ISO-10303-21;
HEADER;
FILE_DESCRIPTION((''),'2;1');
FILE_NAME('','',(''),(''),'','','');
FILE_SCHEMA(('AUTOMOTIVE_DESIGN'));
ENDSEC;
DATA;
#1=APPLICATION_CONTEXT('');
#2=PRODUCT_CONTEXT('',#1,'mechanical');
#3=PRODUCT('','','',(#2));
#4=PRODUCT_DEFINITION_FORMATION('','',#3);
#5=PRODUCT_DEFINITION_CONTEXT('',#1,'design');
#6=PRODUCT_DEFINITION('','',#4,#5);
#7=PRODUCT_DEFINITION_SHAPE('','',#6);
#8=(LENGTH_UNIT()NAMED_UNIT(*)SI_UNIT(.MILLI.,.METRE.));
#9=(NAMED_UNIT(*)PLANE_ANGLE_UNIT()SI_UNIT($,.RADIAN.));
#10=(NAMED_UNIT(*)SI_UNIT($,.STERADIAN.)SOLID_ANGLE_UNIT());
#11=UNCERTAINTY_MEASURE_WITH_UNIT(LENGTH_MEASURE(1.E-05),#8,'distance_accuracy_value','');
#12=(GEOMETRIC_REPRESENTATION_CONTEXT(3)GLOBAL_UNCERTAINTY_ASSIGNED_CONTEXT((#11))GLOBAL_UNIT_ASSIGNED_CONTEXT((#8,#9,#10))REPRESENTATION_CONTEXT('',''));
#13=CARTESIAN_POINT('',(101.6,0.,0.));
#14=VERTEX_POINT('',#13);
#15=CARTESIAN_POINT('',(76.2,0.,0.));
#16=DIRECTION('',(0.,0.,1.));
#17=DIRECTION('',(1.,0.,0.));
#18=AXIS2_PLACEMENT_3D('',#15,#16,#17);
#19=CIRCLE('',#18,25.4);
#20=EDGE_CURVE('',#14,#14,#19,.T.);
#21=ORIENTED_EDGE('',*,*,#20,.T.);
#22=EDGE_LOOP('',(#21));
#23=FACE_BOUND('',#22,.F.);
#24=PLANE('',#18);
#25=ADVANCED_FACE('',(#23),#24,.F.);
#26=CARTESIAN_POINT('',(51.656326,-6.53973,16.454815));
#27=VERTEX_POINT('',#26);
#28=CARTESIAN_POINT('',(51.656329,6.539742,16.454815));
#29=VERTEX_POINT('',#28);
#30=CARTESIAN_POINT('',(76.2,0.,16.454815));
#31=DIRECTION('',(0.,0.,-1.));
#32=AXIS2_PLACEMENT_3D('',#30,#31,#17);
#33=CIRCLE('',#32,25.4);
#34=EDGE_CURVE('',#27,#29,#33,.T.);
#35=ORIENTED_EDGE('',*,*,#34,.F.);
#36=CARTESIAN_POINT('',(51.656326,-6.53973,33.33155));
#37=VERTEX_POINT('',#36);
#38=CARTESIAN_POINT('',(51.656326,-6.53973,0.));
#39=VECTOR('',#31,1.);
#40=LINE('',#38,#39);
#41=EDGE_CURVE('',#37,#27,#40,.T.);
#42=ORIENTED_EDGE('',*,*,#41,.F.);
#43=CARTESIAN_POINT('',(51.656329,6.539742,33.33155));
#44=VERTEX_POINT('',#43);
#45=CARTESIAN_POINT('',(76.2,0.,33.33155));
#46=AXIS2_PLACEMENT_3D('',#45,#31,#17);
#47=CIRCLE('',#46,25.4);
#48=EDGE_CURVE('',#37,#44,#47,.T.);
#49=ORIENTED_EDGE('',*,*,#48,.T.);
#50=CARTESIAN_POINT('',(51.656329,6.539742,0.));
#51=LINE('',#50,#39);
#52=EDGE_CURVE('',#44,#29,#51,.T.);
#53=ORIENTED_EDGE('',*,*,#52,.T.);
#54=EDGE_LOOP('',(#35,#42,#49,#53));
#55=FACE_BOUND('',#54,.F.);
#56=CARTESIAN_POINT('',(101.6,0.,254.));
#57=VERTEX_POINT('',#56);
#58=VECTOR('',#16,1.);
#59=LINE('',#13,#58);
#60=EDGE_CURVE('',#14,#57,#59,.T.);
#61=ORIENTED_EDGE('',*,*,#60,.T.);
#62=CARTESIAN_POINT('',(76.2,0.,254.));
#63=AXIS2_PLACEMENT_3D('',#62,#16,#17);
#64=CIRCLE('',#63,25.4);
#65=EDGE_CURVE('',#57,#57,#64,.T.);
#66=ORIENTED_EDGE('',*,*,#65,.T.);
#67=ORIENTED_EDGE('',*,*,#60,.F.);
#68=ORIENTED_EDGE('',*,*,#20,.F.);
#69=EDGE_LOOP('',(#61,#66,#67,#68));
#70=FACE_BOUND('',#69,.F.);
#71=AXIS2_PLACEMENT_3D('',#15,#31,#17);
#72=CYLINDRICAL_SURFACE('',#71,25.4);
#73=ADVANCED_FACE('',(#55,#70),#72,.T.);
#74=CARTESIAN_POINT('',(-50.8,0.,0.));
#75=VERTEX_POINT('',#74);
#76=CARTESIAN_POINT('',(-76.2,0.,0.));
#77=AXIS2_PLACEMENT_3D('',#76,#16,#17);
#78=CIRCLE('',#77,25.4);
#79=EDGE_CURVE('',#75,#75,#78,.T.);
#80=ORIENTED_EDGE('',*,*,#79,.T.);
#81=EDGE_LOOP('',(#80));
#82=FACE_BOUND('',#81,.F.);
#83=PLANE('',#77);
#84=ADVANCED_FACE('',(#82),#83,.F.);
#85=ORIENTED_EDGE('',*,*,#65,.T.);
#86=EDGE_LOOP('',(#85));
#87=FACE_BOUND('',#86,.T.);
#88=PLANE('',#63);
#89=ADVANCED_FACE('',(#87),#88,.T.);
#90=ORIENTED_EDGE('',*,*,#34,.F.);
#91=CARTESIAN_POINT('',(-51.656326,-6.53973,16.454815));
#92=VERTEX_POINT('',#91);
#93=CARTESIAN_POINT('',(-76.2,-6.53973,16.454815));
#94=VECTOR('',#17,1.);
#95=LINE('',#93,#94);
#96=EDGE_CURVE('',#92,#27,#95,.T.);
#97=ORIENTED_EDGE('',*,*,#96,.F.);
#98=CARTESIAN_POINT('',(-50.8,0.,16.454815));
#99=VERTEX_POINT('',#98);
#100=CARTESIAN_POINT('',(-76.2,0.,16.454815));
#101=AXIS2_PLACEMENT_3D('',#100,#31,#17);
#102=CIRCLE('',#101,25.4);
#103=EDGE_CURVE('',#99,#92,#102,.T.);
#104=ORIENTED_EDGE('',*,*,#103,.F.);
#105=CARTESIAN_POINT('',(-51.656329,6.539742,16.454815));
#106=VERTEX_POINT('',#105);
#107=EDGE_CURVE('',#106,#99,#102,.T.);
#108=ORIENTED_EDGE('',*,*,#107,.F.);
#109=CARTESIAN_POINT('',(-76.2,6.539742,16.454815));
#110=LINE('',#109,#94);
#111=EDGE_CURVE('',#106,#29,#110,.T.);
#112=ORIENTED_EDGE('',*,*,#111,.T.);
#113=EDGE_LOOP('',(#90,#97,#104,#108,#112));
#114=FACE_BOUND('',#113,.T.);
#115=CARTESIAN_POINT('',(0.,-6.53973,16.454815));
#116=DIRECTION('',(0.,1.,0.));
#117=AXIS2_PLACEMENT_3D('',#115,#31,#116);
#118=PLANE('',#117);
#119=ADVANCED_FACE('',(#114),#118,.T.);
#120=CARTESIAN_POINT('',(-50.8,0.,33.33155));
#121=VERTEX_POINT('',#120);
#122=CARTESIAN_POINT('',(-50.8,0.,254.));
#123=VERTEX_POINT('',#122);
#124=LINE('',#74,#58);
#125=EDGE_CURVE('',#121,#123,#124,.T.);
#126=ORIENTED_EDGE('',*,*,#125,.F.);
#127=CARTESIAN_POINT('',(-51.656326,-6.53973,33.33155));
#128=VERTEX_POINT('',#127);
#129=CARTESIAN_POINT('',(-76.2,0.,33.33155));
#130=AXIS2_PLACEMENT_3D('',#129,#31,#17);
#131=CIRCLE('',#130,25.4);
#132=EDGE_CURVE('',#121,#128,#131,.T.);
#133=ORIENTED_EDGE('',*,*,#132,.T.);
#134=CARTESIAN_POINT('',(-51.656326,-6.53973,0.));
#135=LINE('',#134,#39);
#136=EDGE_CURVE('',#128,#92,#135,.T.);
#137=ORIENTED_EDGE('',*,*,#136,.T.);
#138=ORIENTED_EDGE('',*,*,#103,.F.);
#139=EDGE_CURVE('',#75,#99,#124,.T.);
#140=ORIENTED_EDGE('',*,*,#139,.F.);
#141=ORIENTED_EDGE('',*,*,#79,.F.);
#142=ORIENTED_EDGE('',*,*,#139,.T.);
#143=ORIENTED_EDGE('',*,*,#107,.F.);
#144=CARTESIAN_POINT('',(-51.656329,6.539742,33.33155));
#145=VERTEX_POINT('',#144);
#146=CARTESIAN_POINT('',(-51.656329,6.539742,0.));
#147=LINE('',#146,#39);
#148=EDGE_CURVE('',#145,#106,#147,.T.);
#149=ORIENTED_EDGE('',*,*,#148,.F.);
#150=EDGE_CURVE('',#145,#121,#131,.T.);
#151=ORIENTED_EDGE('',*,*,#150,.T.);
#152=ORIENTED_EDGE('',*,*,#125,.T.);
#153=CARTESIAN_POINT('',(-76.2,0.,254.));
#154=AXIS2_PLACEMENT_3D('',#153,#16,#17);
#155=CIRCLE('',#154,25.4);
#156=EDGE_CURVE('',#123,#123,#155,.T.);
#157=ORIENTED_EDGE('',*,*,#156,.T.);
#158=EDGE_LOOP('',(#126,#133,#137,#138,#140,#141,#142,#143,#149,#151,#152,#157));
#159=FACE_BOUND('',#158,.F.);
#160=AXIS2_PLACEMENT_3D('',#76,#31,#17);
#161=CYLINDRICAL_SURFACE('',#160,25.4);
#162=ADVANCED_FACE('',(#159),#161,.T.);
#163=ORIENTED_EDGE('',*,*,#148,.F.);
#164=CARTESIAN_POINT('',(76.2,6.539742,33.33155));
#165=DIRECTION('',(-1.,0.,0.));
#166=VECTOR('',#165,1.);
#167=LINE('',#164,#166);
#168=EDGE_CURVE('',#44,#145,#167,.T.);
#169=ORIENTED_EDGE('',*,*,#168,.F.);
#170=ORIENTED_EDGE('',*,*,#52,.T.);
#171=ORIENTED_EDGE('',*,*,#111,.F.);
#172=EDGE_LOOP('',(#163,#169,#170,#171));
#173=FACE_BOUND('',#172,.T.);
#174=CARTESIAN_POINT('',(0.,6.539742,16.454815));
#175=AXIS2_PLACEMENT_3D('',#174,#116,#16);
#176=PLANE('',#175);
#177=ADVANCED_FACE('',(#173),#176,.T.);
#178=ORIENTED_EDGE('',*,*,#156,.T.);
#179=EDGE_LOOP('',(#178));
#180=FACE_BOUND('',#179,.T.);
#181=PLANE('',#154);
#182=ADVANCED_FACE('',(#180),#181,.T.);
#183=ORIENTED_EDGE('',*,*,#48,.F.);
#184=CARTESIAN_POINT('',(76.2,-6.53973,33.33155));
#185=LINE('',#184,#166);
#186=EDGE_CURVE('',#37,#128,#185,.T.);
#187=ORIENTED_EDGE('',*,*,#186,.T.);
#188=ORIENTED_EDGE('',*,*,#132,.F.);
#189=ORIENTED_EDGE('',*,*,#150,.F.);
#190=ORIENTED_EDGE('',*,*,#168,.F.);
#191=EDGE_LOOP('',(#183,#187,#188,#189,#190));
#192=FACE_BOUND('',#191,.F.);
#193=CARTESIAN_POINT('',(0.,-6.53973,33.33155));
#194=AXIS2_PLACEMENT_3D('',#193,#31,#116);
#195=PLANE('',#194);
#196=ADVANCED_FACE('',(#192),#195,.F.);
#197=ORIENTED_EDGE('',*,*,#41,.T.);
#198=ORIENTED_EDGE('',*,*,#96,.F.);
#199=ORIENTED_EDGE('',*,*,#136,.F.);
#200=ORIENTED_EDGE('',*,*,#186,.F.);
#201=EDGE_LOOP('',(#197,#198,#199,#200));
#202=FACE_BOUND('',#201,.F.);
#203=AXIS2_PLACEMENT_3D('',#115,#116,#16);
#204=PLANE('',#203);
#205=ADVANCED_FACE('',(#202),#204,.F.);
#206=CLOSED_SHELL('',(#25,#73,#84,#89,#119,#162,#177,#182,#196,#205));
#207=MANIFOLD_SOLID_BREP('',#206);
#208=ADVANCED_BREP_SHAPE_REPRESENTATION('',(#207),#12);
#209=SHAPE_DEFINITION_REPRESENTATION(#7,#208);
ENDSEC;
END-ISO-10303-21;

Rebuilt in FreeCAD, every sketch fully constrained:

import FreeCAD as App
import Part
import Sketcher

V = App.Vector
Q = App.Units.Quantity

doc = App.newDocument("Part")
body = doc.addObject("PartDesign::Body", "Body")

sketch1 = body.newObject("Sketcher::SketchObject", "Sketch")
sketch1.AttachmentSupport = (doc.getObject("YZ_Plane"), [""])
sketch1.MapMode = "FlatFace"
sketch1.addGeometry([
    Part.LineSegment(V(-7, 33, 0), V(-7, 16, 0)),
    Part.LineSegment(V(-7, 16, 0), V(7, 16, 0)),
    Part.LineSegment(V(7, 16, 0), V(7, 33, 0)),
    Part.LineSegment(V(7, 33, 0), V(-7, 33, 0)),
], False)
sketch1.addConstraint([
    Sketcher.Constraint("Coincident", 0, 2, 1, 1),
    Sketcher.Constraint("Coincident", 1, 2, 2, 1),
    Sketcher.Constraint("Coincident", 2, 2, 3, 1),
    Sketcher.Constraint("Coincident", 3, 2, 0, 1),
    Sketcher.Constraint("Vertical", 0),
    Sketcher.Constraint("Horizontal", 1),
    Sketcher.Constraint("Vertical", 2),
    Sketcher.Constraint("Horizontal", 3),
    Sketcher.Constraint("DistanceX", 1, 1, 1, 2, 13.079472),
    Sketcher.Constraint("DistanceY", 0, 2, 0, 1, 16.876735),
    Sketcher.Constraint("DistanceX", 0, 2, -1, 1, 6.53973),
    Sketcher.Constraint("DistanceY", -1, 1, 2, 2, 33.33155),
])
pad1 = body.newObject("PartDesign::Pad", "Pad")
pad1.Profile = sketch1
pad1.Length = Q("6 in")
pad1.Midplane = True

sketch2 = body.newObject("Sketcher::SketchObject", "Sketch001")
sketch2.AttachmentSupport = (doc.getObject("XY_Plane"), [""])
sketch2.MapMode = "FlatFace"
sketch2.addGeometry([
    Part.Circle(V(-76, 0, 0), V(0, 0, 1), 25),
    Part.Circle(V(76, 0, 0), V(0, 0, 1), 25),
], False)
sketch2.addConstraint([
    Sketcher.Constraint("Equal", 0, 1),
    Sketcher.Constraint("Symmetric", 0, 3, 1, 3, -1, 1),
    Sketcher.Constraint("PointOnObject", 0, 3, -1),
    Sketcher.Constraint("Diameter", 0, Q("2 in")),
    Sketcher.Constraint("DistanceX", 0, 3, -1, 1, Q("3 in")),
])
pad2 = body.newObject("PartDesign::Pad", "Pad001")
pad2.Profile = sketch2
pad2.Length = Q("10 in")

doc.recompute()
